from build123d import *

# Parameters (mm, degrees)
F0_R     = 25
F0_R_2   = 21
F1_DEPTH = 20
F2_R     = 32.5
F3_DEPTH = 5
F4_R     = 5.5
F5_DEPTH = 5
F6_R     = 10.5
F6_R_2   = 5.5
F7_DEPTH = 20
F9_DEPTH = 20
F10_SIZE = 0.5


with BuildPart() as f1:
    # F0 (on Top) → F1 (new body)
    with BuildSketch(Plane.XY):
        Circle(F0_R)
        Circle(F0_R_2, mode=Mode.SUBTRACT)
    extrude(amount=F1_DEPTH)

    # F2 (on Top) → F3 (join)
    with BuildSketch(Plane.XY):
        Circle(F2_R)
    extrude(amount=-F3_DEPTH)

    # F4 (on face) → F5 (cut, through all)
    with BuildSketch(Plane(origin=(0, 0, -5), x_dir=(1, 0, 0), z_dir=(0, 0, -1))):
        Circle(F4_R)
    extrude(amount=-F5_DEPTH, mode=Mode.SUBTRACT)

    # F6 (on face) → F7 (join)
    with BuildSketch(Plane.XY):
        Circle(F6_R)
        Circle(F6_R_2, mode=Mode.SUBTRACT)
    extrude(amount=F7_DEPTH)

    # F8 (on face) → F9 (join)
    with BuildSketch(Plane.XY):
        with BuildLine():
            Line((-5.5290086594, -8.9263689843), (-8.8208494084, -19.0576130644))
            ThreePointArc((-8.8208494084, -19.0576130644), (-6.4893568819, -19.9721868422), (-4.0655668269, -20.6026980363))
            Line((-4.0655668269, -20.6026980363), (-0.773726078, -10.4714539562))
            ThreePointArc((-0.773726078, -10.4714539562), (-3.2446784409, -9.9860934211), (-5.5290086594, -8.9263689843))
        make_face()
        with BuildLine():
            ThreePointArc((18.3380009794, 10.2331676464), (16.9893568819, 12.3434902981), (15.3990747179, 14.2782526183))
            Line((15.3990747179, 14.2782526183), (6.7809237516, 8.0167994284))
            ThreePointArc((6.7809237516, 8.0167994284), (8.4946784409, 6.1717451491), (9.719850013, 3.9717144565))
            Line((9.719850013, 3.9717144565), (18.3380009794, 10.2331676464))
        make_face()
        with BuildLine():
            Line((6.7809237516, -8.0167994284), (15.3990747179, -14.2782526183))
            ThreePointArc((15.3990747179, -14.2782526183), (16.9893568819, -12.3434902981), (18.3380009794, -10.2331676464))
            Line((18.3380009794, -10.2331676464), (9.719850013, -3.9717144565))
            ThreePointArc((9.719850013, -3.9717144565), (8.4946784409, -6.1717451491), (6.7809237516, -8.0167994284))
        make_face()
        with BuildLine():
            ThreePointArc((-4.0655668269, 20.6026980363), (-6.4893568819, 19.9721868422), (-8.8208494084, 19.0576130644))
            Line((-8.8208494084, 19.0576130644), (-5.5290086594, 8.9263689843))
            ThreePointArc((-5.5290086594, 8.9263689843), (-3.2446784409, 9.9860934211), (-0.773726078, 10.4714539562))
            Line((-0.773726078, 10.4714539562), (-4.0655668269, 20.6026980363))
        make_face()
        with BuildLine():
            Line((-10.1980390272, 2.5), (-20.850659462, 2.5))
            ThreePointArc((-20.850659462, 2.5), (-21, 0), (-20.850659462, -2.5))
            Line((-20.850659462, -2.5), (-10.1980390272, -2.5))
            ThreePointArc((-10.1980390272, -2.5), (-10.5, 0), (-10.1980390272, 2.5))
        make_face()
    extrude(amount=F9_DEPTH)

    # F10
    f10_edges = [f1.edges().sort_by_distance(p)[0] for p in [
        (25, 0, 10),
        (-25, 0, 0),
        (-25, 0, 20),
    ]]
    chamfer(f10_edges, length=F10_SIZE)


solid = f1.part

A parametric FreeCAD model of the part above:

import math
import FreeCAD as App
import Part
import Sketcher
from FreeCAD import Vector
Q = App.Units.Quantity


def edges_at(feature, points):
    """Names of the edges that pass closest to the given points."""
    edges = feature.Shape.Edges
    near = lambda p: min(range(len(edges)), key=lambda i: edges[i].distToShape(Part.Vertex(*p))[0])
    return sorted({f"Edge{near(p) + 1}" for p in points})

doc = App.newDocument("Part")
body = doc.addObject("PartDesign::Body", "Body")

# Sketch on XY plane
sketch1 = body.newObject("Sketcher::SketchObject", "Sketch")
sketch1.AttachmentSupport = (doc.getObject("XY_Plane"), [""])
sketch1.MapMode = "FlatFace"
sketch1.addGeometry([
    Part.Circle(Vector(0, 0, 0), Vector(0, 0, 1), 25),
    Part.Circle(Vector(0, 0, 0), Vector(0, 0, 1), 21),
], False)
sketch1.addConstraint([
    Sketcher.Constraint("Coincident", 0, 3, -1, 1),
    Sketcher.Constraint("Coincident", 1, 3, -1, 1),
    Sketcher.Constraint("Diameter", 0, 50.0),
    Sketcher.Constraint("Diameter", 1, 42.0),
])
pad1 = body.newObject("PartDesign::Pad", "Pad")
pad1.Profile = sketch1
pad1.Length = 20

# Sketch on XY plane
sketch2 = body.newObject("Sketcher::SketchObject", "Sketch001")
sketch2.AttachmentSupport = (doc.getObject("XY_Plane"), [""])
sketch2.MapMode = "FlatFace"
sketch2.addGeometry(Part.Circle(Vector(0, 0, 0), Vector(0, 0, 1), 32), False)
sketch2.addConstraint([
    Sketcher.Constraint("Coincident", 0, 3, -1, 1),
    Sketcher.Constraint("Diameter", 0, 65.0),
])
pad2 = body.newObject("PartDesign::Pad", "Pad001")
pad2.Profile = sketch2
pad2.Length = 5
pad2.Reversed = True

# Sketch on XY plane
sketch3 = body.newObject("Sketcher::SketchObject", "Sketch002")
sketch3.AttachmentSupport = (doc.getObject("XY_Plane"), [""])
sketch3.MapMode = "FlatFace"
sketch3.AttachmentOffset = App.Placement(Vector(0, 0, -5), App.Rotation())
sketch3.addGeometry(Part.Circle(Vector(0, 0, 0), Vector(0, 0, 1), 6), False)
sketch3.addConstraint([
    Sketcher.Constraint("Coincident", 0, 3, -1, 1),
    Sketcher.Constraint("Diameter", 0, 11.0),
])
pocket1 = body.newObject("PartDesign::Pocket", "Pocket")
pocket1.Profile = sketch3
pocket1.Type = "ThroughAll"
pocket1.Reversed = True

# Sketch on XY plane
sketch4 = body.newObject("Sketcher::SketchObject", "Sketch003")
sketch4.AttachmentSupport = (doc.getObject("XY_Plane"), [""])
sketch4.MapMode = "FlatFace"
sketch4.addGeometry([
    Part.Circle(Vector(0, 0, 0), Vector(0, 0, 1), 10),
    Part.Circle(Vector(0, 0, 0), Vector(0, 0, 1), 6),
], False)
sketch4.addConstraint([
    Sketcher.Constraint("Coincident", 0, 3, -1, 1),
    Sketcher.Constraint("Coincident", 1, 3, -1, 1),
    Sketcher.Constraint("Diameter", 0, 21.0),
    Sketcher.Constraint("Diameter", 1, 11.0),
])
pad3 = body.newObject("PartDesign::Pad", "Pad002")
pad3.Profile = sketch4
pad3.Length = 20

# Sketch on XY plane
sketch5 = body.newObject("Sketcher::SketchObject", "Sketch004")
sketch5.AttachmentSupport = (doc.getObject("XY_Plane"), [""])
sketch5.MapMode = "FlatFace"
sketch5.addGeometry([
    Part.LineSegment(Vector(-5.5, -8.9, 0), Vector(-8.8, -19.1, 0)),  # 0
    Part.ArcOfCircle(Part.Circle(Vector(0, 0, 0), Vector(0, 0, 1), 21), math.radians(-114.84), math.radians(-101.16)),  # 1
    Part.LineSegment(Vector(-4.1, -20.6, 0), Vector(-0.8, -10.5, 0)),  # 2
    Part.ArcOfCircle(Part.Circle(Vector(0, 0, 0), Vector(0, 0, 1), 10.5), math.radians(-122), math.radians(-94)),  # 3
    Part.ArcOfCircle(Part.Circle(Vector(0, 0, 0), Vector(0, 0, 1), 21), math.radians(29.16), math.radians(42.84)),  # 4
    Part.LineSegment(Vector(15.4, 14.3, 0), Vector(6.8, 8, 0)),  # 5
    Part.ArcOfCircle(Part.Circle(Vector(0, 0, 0), Vector(0, 0, 1), 10.5), math.radians(22), math.radians(50)),  # 6
    Part.LineSegment(Vector(9.7, 4, 0), Vector(18.3, 10.2, 0)),  # 7
    Part.LineSegment(Vector(6.8, -8, 0), Vector(15.4, -14.3, 0)),  # 8
    Part.ArcOfCircle(Part.Circle(Vector(0, 0, 0), Vector(0, 0, 1), 21), math.radians(-42.84), math.radians(-29.16)),  # 9
    Part.LineSegment(Vector(18.3, -10.2, 0), Vector(9.7, -4, 0)),  # 10
    Part.ArcOfCircle(Part.Circle(Vector(0, 0, 0), Vector(0, 0, 1), 10.5), math.radians(-50), math.radians(-22)),  # 11
    Part.ArcOfCircle(Part.Circle(Vector(0, 0, 0), Vector(0, 0, 1), 21), math.radians(101.16), math.radians(114.84)),  # 12
    Part.LineSegment(Vector(-8.8, 19.1, 0), Vector(-5.5, 8.9, 0)),  # 13
    Part.ArcOfCircle(Part.Circle(Vector(0, 0, 0), Vector(0, 0, 1), 10.5), math.radians(94), math.radians(122)),  # 14
    Part.LineSegment(Vector(-0.8, 10.5, 0), Vector(-4.1, 20.6, 0)),  # 15
    Part.LineSegment(Vector(-10.2, 2.5, 0), Vector(-20.9, 2.5, 0)),  # 16
    Part.ArcOfCircle(Part.Circle(Vector(0, 0, 0), Vector(0, 0, 1), 21), math.radians(173.16), math.radians(186.84)),  # 17
    Part.LineSegment(Vector(-20.9, -2.5, 0), Vector(-10.2, -2.5, 0)),  # 18
    Part.ArcOfCircle(Part.Circle(Vector(0, 0, 0), Vector(0, 0, 1), 10.5), math.radians(166), math.radians(194)),  # 19
], False)
sketch5.addConstraint([
    Sketcher.Constraint("Coincident", 0, 2, 1, 1),
    Sketcher.Constraint("Coincident", 1, 2, 2, 1),
    Sketcher.Constraint("Coincident", 2, 2, 3, 2),
    Sketcher.Constraint("Coincident", 3, 1, 0, 1),
    Sketcher.Constraint("Coincident", 4, 2, 5, 1),
    Sketcher.Constraint("Coincident", 5, 2, 6, 2),
    Sketcher.Constraint("Coincident", 6, 1, 7, 1),
    Sketcher.Constraint("Coincident", 7, 2, 4, 1),
    Sketcher.Constraint("Coincident", 8, 2, 9, 1),
    Sketcher.Constraint("Coincident", 9, 2, 10, 1),
    Sketcher.Constraint("Coincident", 10, 2, 11, 2),
    Sketcher.Constraint("Coincident", 11, 1, 8, 1),
    Sketcher.Constraint("Coincident", 12, 2, 13, 1),
    Sketcher.Constraint("Coincident", 13, 2, 14, 2),
    Sketcher.Constraint("Coincident", 14, 1, 15, 1),
    Sketcher.Constraint("Coincident", 15, 2, 12, 1),
    Sketcher.Constraint("Coincident", 16, 2, 17, 1),
    Sketcher.Constraint("Coincident", 17, 2, 18, 1),
    Sketcher.Constraint("Coincident", 18, 2, 19, 2),
    Sketcher.Constraint("Coincident", 19, 1, 16, 1),
    Sketcher.Constraint("Horizontal", 16),
    Sketcher.Constraint("Horizontal", 18),
    Sketcher.Constraint("Coincident", 1, 3, -1, 1),
    Sketcher.Constraint("Coincident", 3, 3, -1, 1),
    Sketcher.Constraint("Coincident", 4, 3, -1, 1),
    Sketcher.Constraint("Coincident", 6, 3, -1, 1),
    Sketcher.Constraint("Coincident", 9, 3, -1, 1),
    Sketcher.Constraint("Coincident", 11, 3, -1, 1),
    Sketcher.Constraint("Coincident", 12, 3, -1, 1),
    Sketcher.Constraint("Coincident", 14, 3, -1, 1),
    Sketcher.Constraint("Coincident", 17, 3, -1, 1),
    Sketcher.Constraint("Coincident", 19, 3, -1, 1),
    Sketcher.Constraint("Equal", 1, 4),
    Sketcher.Constraint("Equal", 3, 6),
    Sketcher.Constraint("Equal", 4, 9),
    Sketcher.Constraint("Equal", 6, 11),
    Sketcher.Constraint("Equal", 9, 12),
    Sketcher.Constraint("Equal", 11, 14),
    Sketcher.Constraint("Equal", 12, 17),
    Sketcher.Constraint("Equal", 14, 19),
    Sketcher.Constraint("Parallel", 0, 2),
    Sketcher.Constraint("Parallel", 5, 7),
    Sketcher.Constraint("Parallel", 8, 10),
    Sketcher.Constraint("Parallel", 13, 15),
    Sketcher.Constraint("Vertical", 4, 2, 8, 2),
    Sketcher.Constraint("Vertical", 7, 2, 9, 2),
    Sketcher.Constraint("Vertical", 6, 1, 10, 2),
    Sketcher.Constraint("Vertical", 0, 2, 12, 2),
    Sketcher.Constraint("Vertical", 3, 1, 13, 2),
    Sketcher.Constraint("Vertical", 2, 2, 14, 1),
    Sketcher.Constraint("Vertical", 16, 2, 17, 2),
    Sketcher.Constraint("Equal", 0, 2),
    Sketcher.Constraint("Equal", 2, 5),
    Sketcher.Constraint("Equal", 5, 7),
    Sketcher.Constraint("Radius", 1, 21.0),
    Sketcher.Constraint("Radius", 3, 10.5),
    Sketcher.Constraint("Angle", 0, Q("-108 deg")),
    Sketcher.Constraint("Angle", 5, Q("-144 deg")),
    Sketcher.Constraint("DistanceY", 17, 2, 16, 2, 5.0),
    Sketcher.Constraint("DistanceX", -1, 1, 7, 2, 18.338001),
])
pad4 = body.newObject("PartDesign::Pad", "Pad003")
pad4.Profile = sketch5
pad4.Length = 20
doc.recompute()

chamfer = body.newObject("PartDesign::Chamfer", "Chamfer")
chamfer.Base = (pad4, edges_at(pad4, [(25, 0, 10), (-25, 0, 0), (-25, 0, 20)]))
chamfer.Size = 0.5

doc.recompute()
